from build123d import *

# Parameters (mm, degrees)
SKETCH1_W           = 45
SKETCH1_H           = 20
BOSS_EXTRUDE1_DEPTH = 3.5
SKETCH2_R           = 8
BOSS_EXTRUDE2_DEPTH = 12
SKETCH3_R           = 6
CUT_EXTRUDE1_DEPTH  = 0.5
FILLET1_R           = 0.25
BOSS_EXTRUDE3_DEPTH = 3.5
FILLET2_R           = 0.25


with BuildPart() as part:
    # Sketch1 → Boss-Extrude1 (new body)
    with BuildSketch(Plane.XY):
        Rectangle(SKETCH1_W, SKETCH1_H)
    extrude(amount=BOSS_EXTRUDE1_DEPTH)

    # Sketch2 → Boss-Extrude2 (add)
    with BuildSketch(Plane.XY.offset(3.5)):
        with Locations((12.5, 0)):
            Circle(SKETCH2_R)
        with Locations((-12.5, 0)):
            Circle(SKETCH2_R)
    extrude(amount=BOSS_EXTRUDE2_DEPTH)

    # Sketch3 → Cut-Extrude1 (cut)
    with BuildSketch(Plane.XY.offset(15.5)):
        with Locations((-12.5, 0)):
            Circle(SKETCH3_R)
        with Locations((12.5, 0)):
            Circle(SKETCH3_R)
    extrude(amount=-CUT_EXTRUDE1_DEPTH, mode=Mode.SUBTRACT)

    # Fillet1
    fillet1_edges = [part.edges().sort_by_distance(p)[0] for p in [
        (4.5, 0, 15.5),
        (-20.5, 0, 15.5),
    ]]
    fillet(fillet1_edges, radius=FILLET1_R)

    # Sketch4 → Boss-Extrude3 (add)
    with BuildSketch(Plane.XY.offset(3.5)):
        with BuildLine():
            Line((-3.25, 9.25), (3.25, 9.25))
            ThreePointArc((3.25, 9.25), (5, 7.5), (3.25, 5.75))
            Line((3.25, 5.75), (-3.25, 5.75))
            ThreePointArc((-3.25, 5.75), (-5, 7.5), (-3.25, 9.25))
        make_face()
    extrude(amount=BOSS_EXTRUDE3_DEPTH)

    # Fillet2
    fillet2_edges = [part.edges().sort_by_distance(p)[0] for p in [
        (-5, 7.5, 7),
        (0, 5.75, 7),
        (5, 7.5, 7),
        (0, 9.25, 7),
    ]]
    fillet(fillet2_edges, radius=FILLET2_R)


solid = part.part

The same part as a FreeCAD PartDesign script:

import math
import FreeCAD as App
import Part
import Sketcher


def edges_at(feature, points):
    """Names of the edges that pass closest to the given points."""
    edges = feature.Shape.Edges
    near = lambda p: min(range(len(edges)), key=lambda i: edges[i].distToShape(Part.Vertex(*p))[0])
    return sorted({f"Edge{near(p) + 1}" for p in points})

doc = App.newDocument("Part")
body = doc.addObject("PartDesign::Body", "Body")

sketch1 = body.newObject("Sketcher::SketchObject", "Sketch")
sketch1.AttachmentSupport = (doc.getObject("XY_Plane"), [""])
sketch1.MapMode = "FlatFace"
sketch1.addGeometry([
    Part.LineSegment(App.Vector(-22, 10, 0), App.Vector(-22, -10, 0)),
    Part.LineSegment(App.Vector(-22, -10, 0), App.Vector(22, -10, 0)),
    Part.LineSegment(App.Vector(22, -10, 0), App.Vector(22, 10, 0)),
    Part.LineSegment(App.Vector(22, 10, 0), App.Vector(-22, 10, 0)),
], False)
sketch1.addConstraint([
    Sketcher.Constraint("Coincident", 0, 2, 1, 1),
    Sketcher.Constraint("Coincident", 1, 2, 2, 1),
    Sketcher.Constraint("Coincident", 2, 2, 3, 1),
    Sketcher.Constraint("Coincident", 3, 2, 0, 1),
    Sketcher.Constraint("Vertical", 0),
    Sketcher.Constraint("Horizontal", 1),
    Sketcher.Constraint("Vertical", 2),
    Sketcher.Constraint("Horizontal", 3),
    Sketcher.Constraint("Symmetric", 0, 2, 2, 2, -1, 1),
    Sketcher.Constraint("DistanceX", 1, 1, 1, 2, 45.0),
    Sketcher.Constraint("DistanceY", 0, 2, 0, 1, 20.0),
])
pad1 = body.newObject("PartDesign::Pad", "Pad")
pad1.Profile = sketch1
pad1.Length = 3.5

sketch2 = body.newObject("Sketcher::SketchObject", "Sketch001")
sketch2.AttachmentSupport = (doc.getObject("XY_Plane"), [""])
sketch2.MapMode = "FlatFace"
sketch2.AttachmentOffset = App.Placement(App.Vector(0, 0, 3.5), App.Rotation())
sketch2.addGeometry([
    Part.Circle(App.Vector(12, 0, 0), App.Vector(0, 0, 1), 8),
    Part.Circle(App.Vector(-12, 0, 0), App.Vector(0, 0, 1), 8),
], False)
sketch2.addConstraint([
    Sketcher.Constraint("Equal", 0, 1),
    Sketcher.Constraint("Symmetric", 0, 3, 1, 3, -1, 1),
    Sketcher.Constraint("PointOnObject", 0, 3, -1),
    Sketcher.Constraint("Diameter", 0, 16.0),
    Sketcher.Constraint("DistanceX", 1, 3, 0, 3, 25.0),
])
pad2 = body.newObject("PartDesign::Pad", "Pad001")
pad2.Profile = sketch2
pad2.Length = 12

sketch3 = body.newObject("Sketcher::SketchObject", "Sketch002")
sketch3.AttachmentSupport = (doc.getObject("XY_Plane"), [""])
sketch3.MapMode = "FlatFace"
sketch3.AttachmentOffset = App.Placement(App.Vector(0, 0, 15.5), App.Rotation())
sketch3.addGeometry([
    Part.Circle(App.Vector(-12, 0, 0), App.Vector(0, 0, 1), 6),
    Part.Circle(App.Vector(12, 0, 0), App.Vector(0, 0, 1), 6),
], False)
sketch3.addConstraint([
    Sketcher.Constraint("Equal", 0, 1),
    Sketcher.Constraint("Symmetric", 0, 3, 1, 3, -1, 1),
    Sketcher.Constraint("PointOnObject", 0, 3, -1),
    Sketcher.Constraint("Diameter", 0, 12.0),
    Sketcher.Constraint("DistanceX", 0, 3, 1, 3, 25.0),
])
pocket1 = body.newObject("PartDesign::Pocket", "Pocket")
pocket1.Profile = sketch3
pocket1.Length = 0.5
doc.recompute()

fillet = body.newObject("PartDesign::Fillet", "Fillet")
fillet.Base = (pocket1, edges_at(pocket1, [(4.5, 0, 15.5), (-20.5, 0, 15.5)]))
fillet.Radius = 0.25

sketch4 = body.newObject("Sketcher::SketchObject", "Sketch003")
sketch4.AttachmentSupport = (doc.getObject("XY_Plane"), [""])
sketch4.MapMode = "FlatFace"
sketch4.AttachmentOffset = App.Placement(App.Vector(0, 0, 3.5), App.Rotation())
sketch4.addGeometry([
    Part.LineSegment(App.Vector(3.2, 9.2, 0), App.Vector(-3.2, 9.2, 0)),
    Part.ArcOfCircle(Part.Circle(App.Vector(-3.2, 7.5, 0), App.Vector(0, 0, 1), 1.8), math.radians(90), math.radians(270)),
    Part.LineSegment(App.Vector(-3.2, 5.8, 0), App.Vector(3.2, 5.8, 0)),
    Part.ArcOfCircle(Part.Circle(App.Vector(3.2, 7.5, 0), App.Vector(0, 0, 1), 1.8), math.radians(-90), math.radians(90)),
], False)
sketch4.addConstraint([
    Sketcher.Constraint("Tangent", 0, 2, 1, 1),
    Sketcher.Constraint("Tangent", 1, 2, 2, 1),
    Sketcher.Constraint("Tangent", 2, 2, 3, 1),
    Sketcher.Constraint("Tangent", 3, 2, 0, 1),
    Sketcher.Constraint("Horizontal", 0),
    Sketcher.Constraint("Horizontal", 2),
    Sketcher.Constraint("Radius", 1, 1.75),
    Sketcher.Constraint("DistanceX", 0, 2, 0, 1, 6.5),
    Sketcher.Constraint("DistanceY", -1, 1, 1, 3, 7.5),
    Sketcher.Constraint("DistanceX", 1, 3, -1, 1, 3.25),
])
pad3 = body.newObject("PartDesign::Pad", "Pad002")
pad3.Profile = sketch4
pad3.Length = 3.5
doc.recompute()

fillet2 = body.newObject("PartDesign::Fillet", "Fillet001")
fillet2.Base = (pad3, edges_at(pad3, [
    (-5, 7.5, 7),
    (0, 5.75, 7),
    (5, 7.5, 7),
    (0, 9.25, 7),
]))
fillet2.Radius = 0.25

doc.recompute()
